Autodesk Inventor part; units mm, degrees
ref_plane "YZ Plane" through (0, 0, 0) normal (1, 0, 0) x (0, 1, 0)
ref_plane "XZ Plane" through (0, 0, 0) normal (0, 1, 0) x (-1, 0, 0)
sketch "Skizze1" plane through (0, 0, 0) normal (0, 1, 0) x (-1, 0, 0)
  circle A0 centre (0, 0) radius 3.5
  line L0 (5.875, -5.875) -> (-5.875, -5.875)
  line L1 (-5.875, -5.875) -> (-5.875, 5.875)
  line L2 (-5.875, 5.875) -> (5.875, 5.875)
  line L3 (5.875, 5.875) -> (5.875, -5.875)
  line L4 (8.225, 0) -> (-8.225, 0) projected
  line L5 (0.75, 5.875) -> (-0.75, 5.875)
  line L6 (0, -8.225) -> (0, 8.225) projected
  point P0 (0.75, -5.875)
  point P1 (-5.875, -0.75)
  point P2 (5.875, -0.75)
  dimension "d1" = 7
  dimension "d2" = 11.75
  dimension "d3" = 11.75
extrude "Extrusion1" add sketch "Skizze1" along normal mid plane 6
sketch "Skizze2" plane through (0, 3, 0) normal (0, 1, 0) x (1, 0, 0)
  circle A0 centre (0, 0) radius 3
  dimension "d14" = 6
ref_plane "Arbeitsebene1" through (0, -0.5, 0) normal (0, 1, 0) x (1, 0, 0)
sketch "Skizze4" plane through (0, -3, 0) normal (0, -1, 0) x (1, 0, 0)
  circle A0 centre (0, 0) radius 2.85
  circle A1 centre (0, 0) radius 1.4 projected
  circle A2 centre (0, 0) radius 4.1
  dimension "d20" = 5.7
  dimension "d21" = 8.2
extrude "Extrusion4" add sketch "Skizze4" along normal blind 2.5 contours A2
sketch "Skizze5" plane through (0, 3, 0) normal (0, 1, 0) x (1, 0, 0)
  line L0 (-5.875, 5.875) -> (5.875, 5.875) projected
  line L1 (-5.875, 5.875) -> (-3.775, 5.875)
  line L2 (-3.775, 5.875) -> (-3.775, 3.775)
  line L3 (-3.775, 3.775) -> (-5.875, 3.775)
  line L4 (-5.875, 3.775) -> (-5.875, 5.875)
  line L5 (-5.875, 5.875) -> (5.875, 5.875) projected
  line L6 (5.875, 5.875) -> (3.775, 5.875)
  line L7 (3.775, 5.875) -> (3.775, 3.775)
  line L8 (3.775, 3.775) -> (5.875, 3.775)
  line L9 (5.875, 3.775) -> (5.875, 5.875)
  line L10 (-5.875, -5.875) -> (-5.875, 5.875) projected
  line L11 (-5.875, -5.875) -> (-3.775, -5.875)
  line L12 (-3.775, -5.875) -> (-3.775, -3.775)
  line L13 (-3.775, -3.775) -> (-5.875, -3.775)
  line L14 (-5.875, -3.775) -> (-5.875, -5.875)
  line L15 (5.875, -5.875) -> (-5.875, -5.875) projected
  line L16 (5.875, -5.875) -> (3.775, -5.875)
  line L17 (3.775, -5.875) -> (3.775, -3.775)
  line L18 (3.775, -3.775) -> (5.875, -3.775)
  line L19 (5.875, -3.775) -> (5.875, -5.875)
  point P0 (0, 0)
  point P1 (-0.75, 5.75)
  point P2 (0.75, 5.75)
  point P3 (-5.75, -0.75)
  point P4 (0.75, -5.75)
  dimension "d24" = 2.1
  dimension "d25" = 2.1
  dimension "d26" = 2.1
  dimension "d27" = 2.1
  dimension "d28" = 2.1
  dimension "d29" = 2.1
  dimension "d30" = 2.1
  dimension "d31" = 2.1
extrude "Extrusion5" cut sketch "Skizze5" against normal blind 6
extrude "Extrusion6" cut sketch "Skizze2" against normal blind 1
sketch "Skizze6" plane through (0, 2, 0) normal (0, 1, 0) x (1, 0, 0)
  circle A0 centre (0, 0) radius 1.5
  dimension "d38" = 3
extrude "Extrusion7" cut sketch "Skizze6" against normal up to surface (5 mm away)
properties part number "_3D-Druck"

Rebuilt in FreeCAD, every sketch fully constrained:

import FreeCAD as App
import Part
import Sketcher

doc = App.newDocument("Part")
body = doc.addObject("PartDesign::Body", "Body")

# Sketch on XZ plane
sketch1 = body.newObject("Sketcher::SketchObject", "Sketch")
sketch1.AttachmentSupport = (doc.getObject("XZ_Plane"), [""])
sketch1.MapMode = "FlatFace"
sketch1.addGeometry(Part.LineSegment(App.Vector(5.875, 5.875, 0), App.Vector(5.875, -5.875, 0)), False)
sketch1.addGeometry(Part.LineSegment(App.Vector(5.875, -5.875, 0), App.Vector(-5.875, -5.875, 0)), False)
sketch1.addGeometry(Part.LineSegment(App.Vector(-5.875, -5.875, 0), App.Vector(-5.875, 5.875, 0)), False)
sketch1.addGeometry(Part.LineSegment(App.Vector(-5.875, 5.875, 0), App.Vector(5.875, 5.875, 0)), False)
sketch1.addConstraint(Sketcher.Constraint("Coincident", 0, 2, 1, 1))
sketch1.addConstraint(Sketcher.Constraint("Coincident", 1, 2, 2, 1))
sketch1.addConstraint(Sketcher.Constraint("Coincident", 2, 2, 3, 1))
sketch1.addConstraint(Sketcher.Constraint("Coincident", 3, 2, 0, 1))
sketch1.addConstraint(Sketcher.Constraint("Vertical", 0))
sketch1.addConstraint(Sketcher.Constraint("Horizontal", 1))
sketch1.addConstraint(Sketcher.Constraint("Vertical", 2))
sketch1.addConstraint(Sketcher.Constraint("Horizontal", 3))
sketch1.addConstraint(Sketcher.Constraint("Symmetric", 0, 2, 2, 2, -1, 1))
sketch1.addConstraint(Sketcher.Constraint("Equal", 3, 0))
sketch1.addConstraint(Sketcher.Constraint("DistanceX", 1, 2, 1, 1, 11.75))
pad1 = body.newObject("PartDesign::Pad", "Pad")
pad1.Profile = sketch1
pad1.Length = 6
pad1.Midplane = True

# Sketch on XZ plane
sketch2 = body.newObject("Sketcher::SketchObject", "Sketch001")
sketch2.AttachmentSupport = (doc.getObject("XZ_Plane"), [""])
sketch2.MapMode = "FlatFace"
sketch2.AttachmentOffset = App.Placement(App.Vector(0, 0, 3), App.Rotation())
sketch2.addGeometry(Part.Circle(App.Vector(0, 0, 0), App.Vector(0, 0, 1), 4.1), False)
sketch2.addGeometry(Part.Circle(App.Vector(0, 0, 0), App.Vector(0, 0, 1), 2.85), False)
sketch2.addConstraint(Sketcher.Constraint("Coincident", 0, 3, -1, 1))
sketch2.addConstraint(Sketcher.Constraint("Coincident", 1, 3, -1, 1))
sketch2.addConstraint(Sketcher.Constraint("Diameter", 0, 8.2))
sketch2.addConstraint(Sketcher.Constraint("Diameter", 1, 5.7))
pad2 = body.newObject("PartDesign::Pad", "Pad001")
pad2.Profile = sketch2
pad2.Length = 2.5

# Sketch on XZ plane
sketch3 = body.newObject("Sketcher::SketchObject", "Sketch002")
sketch3.AttachmentSupport = (doc.getObject("XZ_Plane"), [""])
sketch3.MapMode = "FlatFace"
sketch3.AttachmentOffset = App.Placement(App.Vector(0, 0, -3), App.Rotation())
sketch3.addGeometry(Part.LineSegment(App.Vector(5.875, -5.875, 0), App.Vector(3.775, -5.875, 0)), False)
sketch3.addGeometry(Part.LineSegment(App.Vector(3.775, -5.875, 0), App.Vector(3.775, -3.775, 0)), False)
sketch3.addGeometry(Part.LineSegment(App.Vector(3.775, -3.775, 0), App.Vector(5.875, -3.775, 0)), False)
sketch3.addGeometry(Part.LineSegment(App.Vector(5.875, -3.775, 0), App.Vector(5.875, -5.875, 0)), False)
sketch3.addGeometry(Part.LineSegment(App.Vector(3.775, 3.775, 0), App.Vector(3.775, 5.875, 0)), False)
sketch3.addGeometry(Part.LineSegment(App.Vector(3.775, 5.875, 0), App.Vector(5.875, 5.875, 0)), False)
sketch3.addGeometry(Part.LineSegment(App.Vector(5.875, 5.875, 0), App.Vector(5.875, 3.775, 0)), False)
sketch3.addGeometry(Part.LineSegment(App.Vector(5.875, 3.775, 0), App.Vector(3.775, 3.775, 0)), False)
sketch3.addGeometry(Part.LineSegment(App.Vector(-3.775, 3.775, 0), App.Vector(-5.875, 3.775, 0)), False)
sketch3.addGeometry(Part.LineSegment(App.Vector(-5.875, 3.775, 0), App.Vector(-5.875, 5.875, 0)), False)
sketch3.addGeometry(Part.LineSegment(App.Vector(-5.875, 5.875, 0), App.Vector(-3.775, 5.875, 0)), False)
sketch3.addGeometry(Part.LineSegment(App.Vector(-3.775, 5.875, 0), App.Vector(-3.775, 3.775, 0)), False)
sketch3.addGeometry(Part.LineSegment(App.Vector(-3.775, -5.875, 0), App.Vector(-5.875, -5.875, 0)), False)
sketch3.addGeometry(Part.LineSegment(App.Vector(-5.875, -5.875, 0), App.Vector(-5.875, -3.775, 0)), False)
sketch3.addGeometry(Part.LineSegment(App.Vector(-5.875, -3.775, 0), App.Vector(-3.775, -3.775, 0)), False)
sketch3.addGeometry(Part.LineSegment(App.Vector(-3.775, -3.775, 0), App.Vector(-3.775, -5.875, 0)), False)
sketch3.addConstraint(Sketcher.Constraint("Coincident", 0, 2, 1, 1))
sketch3.addConstraint(Sketcher.Constraint("Coincident", 1, 2, 2, 1))
sketch3.addConstraint(Sketcher.Constraint("Coincident", 2, 2, 3, 1))
sketch3.addConstraint(Sketcher.Constraint("Coincident", 3, 2, 0, 1))
sketch3.addConstraint(Sketcher.Constraint("Coincident", 4, 2, 5, 1))
sketch3.addConstraint(Sketcher.Constraint("Coincident", 5, 2, 6, 1))
sketch3.addConstraint(Sketcher.Constraint("Coincident", 6, 2, 7, 1))
sketch3.addConstraint(Sketcher.Constraint("Coincident", 7, 2, 4, 1))
sketch3.addConstraint(Sketcher.Constraint("Coincident", 8, 2, 9, 1))
sketch3.addConstraint(Sketcher.Constraint("Coincident", 9, 2, 10, 1))
sketch3.addConstraint(Sketcher.Constraint("Coincident", 10, 2, 11, 1))
sketch3.addConstraint(Sketcher.Constraint("Coincident", 11, 2, 8, 1))
sketch3.addConstraint(Sketcher.Constraint("Coincident", 12, 2, 13, 1))
sketch3.addConstraint(Sketcher.Constraint("Coincident", 13, 2, 14, 1))
sketch3.addConstraint(Sketcher.Constraint("Coincident", 14, 2, 15, 1))
sketch3.addConstraint(Sketcher.Constraint("Coincident", 15, 2, 12, 1))
sketch3.addConstraint(Sketcher.Constraint("Horizontal", 0))
sketch3.addConstraint(Sketcher.Constraint("Vertical", 1))
sketch3.addConstraint(Sketcher.Constraint("Horizontal", 2))
sketch3.addConstraint(Sketcher.Constraint("Vertical", 3))
sketch3.addConstraint(Sketcher.Constraint("Vertical", 4))
sketch3.addConstraint(Sketcher.Constraint("Horizontal", 5))
sketch3.addConstraint(Sketcher.Constraint("Vertical", 6))
sketch3.addConstraint(Sketcher.Constraint("Horizontal", 7))
sketch3.addConstraint(Sketcher.Constraint("Horizontal", 8))
sketch3.addConstraint(Sketcher.Constraint("Vertical", 9))
sketch3.addConstraint(Sketcher.Constraint("Horizontal", 10))
sketch3.addConstraint(Sketcher.Constraint("Vertical", 11))
sketch3.addConstraint(Sketcher.Constraint("Horizontal", 12))
sketch3.addConstraint(Sketcher.Constraint("Vertical", 13))
sketch3.addConstraint(Sketcher.Constraint("Horizontal", 14))
sketch3.addConstraint(Sketcher.Constraint("Vertical", 15))
sketch3.addConstraint(Sketcher.Constraint("Symmetric", 2, 2, 8, 2, -1, 1))
sketch3.addConstraint(Sketcher.Constraint("Symmetric", 0, 2, 10, 2, -1, 1))
sketch3.addConstraint(Sketcher.Constraint("Symmetric", 5, 2, 12, 2, -1, 1))
sketch3.addConstraint(Sketcher.Constraint("Symmetric", 7, 2, 14, 2, -1, 1))
sketch3.addConstraint(Sketcher.Constraint("Symmetric", 6, 2, 8, 2, -2))
sketch3.addConstraint(Sketcher.Constraint("Symmetric", 4, 2, 10, 2, -2))
sketch3.addConstraint(Sketcher.Constraint("Equal", 14, 1))
sketch3.addConstraint(Sketcher.Constraint("DistanceX", 0, 2, 0, 1, 2.1))
sketch3.addConstraint(Sketcher.Constraint("DistanceY", 1, 2, 4, 2, 9.65))
sketch3.addConstraint(Sketcher.Constraint("DistanceX", 8, 2, 7, 2, 9.65))
pocket1 = body.newObject("PartDesign::Pocket", "Pocket")
pocket1.Profile = sketch3
pocket1.Length = 6
pocket1.Reversed = True

# Sketch on XZ plane
sketch4 = body.newObject("Sketcher::SketchObject", "Sketch003")
sketch4.AttachmentSupport = (doc.getObject("XZ_Plane"), [""])
sketch4.MapMode = "FlatFace"
sketch4.AttachmentOffset = App.Placement(App.Vector(0, 0, -3), App.Rotation())
sketch4.addGeometry(Part.Circle(App.Vector(0, 0, 0), App.Vector(0, 0, 1), 3), False)
sketch4.addConstraint(Sketcher.Constraint("Coincident", 0, 3, -1, 1))
sketch4.addConstraint(Sketcher.Constraint("Diameter", 0, 6.0))
pocket2 = body.newObject("PartDesign::Pocket", "Pocket001")
pocket2.Profile = sketch4
pocket2.Length = 1
pocket2.Reversed = True

# Sketch on XZ plane
sketch5 = body.newObject("Sketcher::SketchObject", "Sketch004")
sketch5.AttachmentSupport = (doc.getObject("XZ_Plane"), [""])
sketch5.MapMode = "FlatFace"
sketch5.AttachmentOffset = App.Placement(App.Vector(0, 0, -2), App.Rotation())
sketch5.addGeometry(Part.Circle(App.Vector(0, 0, 0), App.Vector(0, 0, 1), 1.5), False)
sketch5.addConstraint(Sketcher.Constraint("Coincident", 0, 3, -1, 1))
sketch5.addConstraint(Sketcher.Constraint("Diameter", 0, 3.0))
pocket3 = body.newObject("PartDesign::Pocket", "Pocket002")
pocket3.Profile = sketch5
pocket3.Length = 5
pocket3.Reversed = True

doc.recompute()
